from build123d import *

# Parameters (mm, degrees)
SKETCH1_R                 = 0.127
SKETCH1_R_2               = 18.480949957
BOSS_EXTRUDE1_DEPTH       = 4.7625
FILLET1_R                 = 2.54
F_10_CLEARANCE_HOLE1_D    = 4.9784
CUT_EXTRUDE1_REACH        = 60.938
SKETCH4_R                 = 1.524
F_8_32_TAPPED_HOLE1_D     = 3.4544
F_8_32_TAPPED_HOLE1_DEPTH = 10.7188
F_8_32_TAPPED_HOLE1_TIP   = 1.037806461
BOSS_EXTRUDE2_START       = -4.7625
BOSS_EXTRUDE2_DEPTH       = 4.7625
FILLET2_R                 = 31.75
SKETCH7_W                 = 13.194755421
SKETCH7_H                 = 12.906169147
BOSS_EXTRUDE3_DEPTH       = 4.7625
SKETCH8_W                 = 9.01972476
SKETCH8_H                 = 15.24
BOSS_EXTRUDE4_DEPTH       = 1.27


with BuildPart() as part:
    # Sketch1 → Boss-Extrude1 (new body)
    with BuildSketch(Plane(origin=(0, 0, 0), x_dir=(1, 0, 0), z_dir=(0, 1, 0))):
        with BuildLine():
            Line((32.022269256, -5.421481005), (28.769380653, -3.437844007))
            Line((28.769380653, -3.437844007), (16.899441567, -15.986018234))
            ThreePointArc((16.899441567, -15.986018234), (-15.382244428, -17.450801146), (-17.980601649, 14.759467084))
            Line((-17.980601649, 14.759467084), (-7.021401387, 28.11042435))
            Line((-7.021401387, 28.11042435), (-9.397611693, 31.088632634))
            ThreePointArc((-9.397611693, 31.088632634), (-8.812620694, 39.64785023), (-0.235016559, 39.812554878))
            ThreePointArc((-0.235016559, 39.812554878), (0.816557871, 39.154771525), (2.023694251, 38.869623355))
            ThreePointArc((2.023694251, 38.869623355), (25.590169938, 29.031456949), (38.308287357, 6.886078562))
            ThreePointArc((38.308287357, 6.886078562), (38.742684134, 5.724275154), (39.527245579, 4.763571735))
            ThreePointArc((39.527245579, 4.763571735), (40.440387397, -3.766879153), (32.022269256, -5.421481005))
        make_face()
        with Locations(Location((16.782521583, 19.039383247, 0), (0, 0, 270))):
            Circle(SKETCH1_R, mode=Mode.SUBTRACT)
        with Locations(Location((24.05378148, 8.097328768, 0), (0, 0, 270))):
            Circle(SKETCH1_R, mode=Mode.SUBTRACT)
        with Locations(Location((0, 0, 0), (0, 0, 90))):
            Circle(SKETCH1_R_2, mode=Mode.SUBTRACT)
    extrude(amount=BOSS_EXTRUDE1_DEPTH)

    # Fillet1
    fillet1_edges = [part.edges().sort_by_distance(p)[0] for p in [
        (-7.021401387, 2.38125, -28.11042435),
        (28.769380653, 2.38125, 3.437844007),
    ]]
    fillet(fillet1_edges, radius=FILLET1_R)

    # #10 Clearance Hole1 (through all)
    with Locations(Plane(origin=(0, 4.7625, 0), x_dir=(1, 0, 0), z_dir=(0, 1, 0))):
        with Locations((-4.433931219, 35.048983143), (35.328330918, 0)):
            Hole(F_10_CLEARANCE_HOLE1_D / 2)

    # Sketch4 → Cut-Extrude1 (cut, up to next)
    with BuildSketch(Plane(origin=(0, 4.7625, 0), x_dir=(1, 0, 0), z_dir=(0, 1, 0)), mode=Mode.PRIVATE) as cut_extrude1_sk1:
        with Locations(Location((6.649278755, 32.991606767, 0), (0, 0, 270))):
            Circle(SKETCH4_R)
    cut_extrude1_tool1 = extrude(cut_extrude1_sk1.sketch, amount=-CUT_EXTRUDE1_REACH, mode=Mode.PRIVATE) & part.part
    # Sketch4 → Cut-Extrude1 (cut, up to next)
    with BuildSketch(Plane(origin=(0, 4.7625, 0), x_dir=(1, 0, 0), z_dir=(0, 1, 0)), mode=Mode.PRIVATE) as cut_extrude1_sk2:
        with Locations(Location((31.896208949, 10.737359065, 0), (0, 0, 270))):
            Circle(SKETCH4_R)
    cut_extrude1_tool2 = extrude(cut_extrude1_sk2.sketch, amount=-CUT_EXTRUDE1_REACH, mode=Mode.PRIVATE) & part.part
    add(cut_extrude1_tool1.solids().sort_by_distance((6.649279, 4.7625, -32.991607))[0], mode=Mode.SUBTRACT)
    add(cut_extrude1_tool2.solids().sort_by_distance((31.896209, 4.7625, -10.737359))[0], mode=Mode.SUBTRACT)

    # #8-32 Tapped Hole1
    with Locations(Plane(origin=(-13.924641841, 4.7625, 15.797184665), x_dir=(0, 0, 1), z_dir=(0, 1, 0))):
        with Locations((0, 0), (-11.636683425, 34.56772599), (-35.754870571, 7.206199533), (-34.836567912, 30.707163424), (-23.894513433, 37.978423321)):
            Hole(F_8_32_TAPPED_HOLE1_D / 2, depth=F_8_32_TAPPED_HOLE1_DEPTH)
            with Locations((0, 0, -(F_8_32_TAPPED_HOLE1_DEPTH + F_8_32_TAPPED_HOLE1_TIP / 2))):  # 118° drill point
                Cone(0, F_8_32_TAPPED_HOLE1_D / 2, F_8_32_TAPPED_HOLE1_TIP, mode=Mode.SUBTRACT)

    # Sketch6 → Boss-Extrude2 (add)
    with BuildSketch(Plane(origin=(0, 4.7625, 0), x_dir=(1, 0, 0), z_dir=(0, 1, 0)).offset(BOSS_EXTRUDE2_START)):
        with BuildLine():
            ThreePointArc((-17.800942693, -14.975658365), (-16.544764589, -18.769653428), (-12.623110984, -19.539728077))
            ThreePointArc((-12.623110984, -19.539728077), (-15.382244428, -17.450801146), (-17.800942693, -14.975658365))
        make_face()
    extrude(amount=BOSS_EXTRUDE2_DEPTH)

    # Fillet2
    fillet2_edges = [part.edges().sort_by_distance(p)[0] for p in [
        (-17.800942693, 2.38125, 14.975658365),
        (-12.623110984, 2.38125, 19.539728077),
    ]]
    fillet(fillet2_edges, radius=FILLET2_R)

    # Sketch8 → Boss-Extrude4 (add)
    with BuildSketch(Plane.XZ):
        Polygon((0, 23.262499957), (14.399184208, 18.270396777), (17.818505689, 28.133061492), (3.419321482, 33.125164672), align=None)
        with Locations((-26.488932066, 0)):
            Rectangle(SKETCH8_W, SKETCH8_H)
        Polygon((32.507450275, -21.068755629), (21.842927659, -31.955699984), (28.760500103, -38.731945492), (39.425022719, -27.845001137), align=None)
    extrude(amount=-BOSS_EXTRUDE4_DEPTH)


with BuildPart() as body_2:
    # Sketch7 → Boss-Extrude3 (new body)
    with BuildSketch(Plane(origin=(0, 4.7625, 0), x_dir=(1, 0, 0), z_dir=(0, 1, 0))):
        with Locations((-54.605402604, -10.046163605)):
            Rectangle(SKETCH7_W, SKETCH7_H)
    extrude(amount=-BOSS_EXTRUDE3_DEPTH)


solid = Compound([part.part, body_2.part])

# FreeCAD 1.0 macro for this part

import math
import FreeCAD as App
import Part
import Sketcher
from FreeCAD import Vector
Q = App.Units.Quantity


def edges_at(feature, points):
    """Names of the edges that pass closest to the given points."""
    edges = feature.Shape.Edges
    near = lambda p: min(range(len(edges)), key=lambda i: edges[i].distToShape(Part.Vertex(*p))[0])
    return sorted({f"Edge{near(p) + 1}" for p in points})

doc = App.newDocument("Part")
body = doc.addObject("PartDesign::Body", "Body")

sketch1 = body.newObject("Sketcher::SketchObject", "Sketch")
sketch1.AttachmentSupport = (doc.getObject("XZ_Plane"), [""])
sketch1.MapMode = "FlatFace"
sketch1.addGeometry(Part.LineSegment(Vector(28.769381, 3.437844, 0), Vector(32.022269, 5.421481, 0)), False)
sketch1.addGeometry(Part.ArcOfCircle(Part.Circle(Vector(35.328331, 0, 0), Vector(0, 0, 1), 6.35), math.radians(-48.605), math.radians(121.375167)), False)
sketch1.addGeometry(Part.ArcOfCircle(Part.Circle(Vector(42.046594, -7.621715, 0), Vector(0, 0, 1), 3.81), math.radians(131.395), math.radians(168.867394)), False)
sketch1.addGeometry(Part.ArcOfCircle(Part.Circle(Vector(-0.695697, 0.789252, 0), Vector(0, 0, 1), 39.752), math.radians(-86.077394), math.radians(-11.132606)), False)
sketch1.addGeometry(Part.ArcOfCircle(Part.Circle(Vector(2.284332, -42.670698, 0), Vector(0, 0, 1), 3.81), math.radians(93.922606), math.radians(131.395)), False)
sketch1.addGeometry(Part.ArcOfCircle(Part.Circle(Vector(-4.433931, -35.048983, 0), Vector(0, 0, 1), 6.35), math.radians(141.414833), math.radians(311.395)), False)
sketch1.addGeometry(Part.LineSegment(Vector(-9.397612, -31.088633, 0), Vector(-7.021401, -28.110424, 0)), False)
sketch1.addGeometry(Part.LineSegment(Vector(-7.021401, -28.110424, 0), Vector(-17.980602, -14.759467, 0)), False)
sketch1.addGeometry(Part.ArcOfCircle(Part.Circle(Vector(0, 0, 0), Vector(0, 0, 1), 23.2625), math.radians(43.408967), math.radians(219.381033)), False)
sketch1.addGeometry(Part.LineSegment(Vector(16.899442, 15.986018, 0), Vector(28.769381, 3.437844, 0)), False)
sketch1.addGeometry(Part.Circle(Vector(0, 0, 0), Vector(0, 0, 1), 18.48095), False)
sketch1.addGeometry(Part.Circle(Vector(24.053781, -8.097329, 0), Vector(0, 0, 1), 0.127), False)
sketch1.addGeometry(Part.Circle(Vector(16.782522, -19.039383, 0), Vector(0, 0, 1), 0.127), False)
sketch1.addConstraint(Sketcher.Constraint("Coincident", 0, 2, 1, 2))
sketch1.addConstraint(Sketcher.Constraint("Coincident", 1, 1, 2, 1))
sketch1.addConstraint(Sketcher.Constraint("Coincident", 2, 2, 3, 2))
sketch1.addConstraint(Sketcher.Constraint("Coincident", 3, 1, 4, 1))
sketch1.addConstraint(Sketcher.Constraint("Coincident", 4, 2, 5, 2))
sketch1.addConstraint(Sketcher.Constraint("Coincident", 5, 1, 6, 1))
sketch1.addConstraint(Sketcher.Constraint("Coincident", 6, 2, 7, 1))
sketch1.addConstraint(Sketcher.Constraint("Coincident", 7, 2, 8, 2))
sketch1.addConstraint(Sketcher.Constraint("Coincident", 8, 1, 9, 1))
sketch1.addConstraint(Sketcher.Constraint("Coincident", 9, 2, 0, 1))
sketch1.addConstraint(Sketcher.Constraint("Coincident", 8, 3, -1, 1))
sketch1.addConstraint(Sketcher.Constraint("Coincident", 10, 3, -1, 1))
sketch1.addConstraint(Sketcher.Constraint("PointOnObject", 1, 3, -1))
sketch1.addConstraint(Sketcher.Constraint("Diameter", 11, Q("0.01 in")))
sketch1.addConstraint(Sketcher.Constraint("Diameter", 12, Q("0.01 in")))
sketch1.addConstraint(Sketcher.Constraint("Radius", 1, Q("0.25 in")))
sketch1.addConstraint(Sketcher.Constraint("Radius", 2, Q("0.15 in")))
sketch1.addConstraint(Sketcher.Constraint("Radius", 4, Q("0.15 in")))
sketch1.addConstraint(Sketcher.Constraint("Radius", 5, Q("0.25 in")))
sketch1.addConstraint(Sketcher.Constraint("Distance", 0, Q("0.15 in")))
sketch1.addConstraint(Sketcher.Constraint("Distance", 6, Q("0.15 in")))
sketch1.addConstraint(Sketcher.Constraint("Diameter", 10, Q("36.9619 mm")))
sketch1.addConstraint(Sketcher.Constraint("Radius", 3, Q("39.752 mm")))
sketch1.addConstraint(Sketcher.Constraint("Radius", 8, Q("23.2625 mm")))
sketch1.addConstraint(Sketcher.Constraint("DistanceY", 3, 1, -1, 1, Q("1.5303001 in")))
sketch1.addConstraint(Sketcher.Constraint("DistanceX", 6, 2, -1, 1, Q("7.021401 mm")))
sketch1.addConstraint(Sketcher.Constraint("DistanceX", 7, 2, -1, 1, Q("17.980602 mm")))
sketch1.addConstraint(Sketcher.Constraint("DistanceX", 4, 3, 1, 3, Q("33.043999 mm")))
sketch1.addConstraint(Sketcher.Constraint("DistanceY", 3, 1, 6, 2, Q("10.759199 mm")))
sketch1.addConstraint(Sketcher.Constraint("DistanceX", 11, 3, 9, 2, Q("4.715599 mm")))
sketch1.addConstraint(Sketcher.Constraint("DistanceX", -1, 1, 1, 3, Q("35.328331 mm")))
sketch1.addConstraint(Sketcher.Constraint("DistanceX", 5, 3, -1, 1, Q("4.433931 mm")))
sketch1.addConstraint(Sketcher.Constraint("DistanceX", -1, 1, 11, 3, Q("24.053781 mm")))
sketch1.addConstraint(Sketcher.Constraint("DistanceY", 11, 3, -1, 1, Q("8.097329 mm")))
sketch1.addConstraint(Sketcher.Constraint("DistanceX", -1, 1, 12, 3, Q("16.782522 mm")))
sketch1.addConstraint(Sketcher.Constraint("DistanceX", -1, 1, 0, 2, Q("32.022269 mm")))
sketch1.addConstraint(Sketcher.Constraint("DistanceY", 1, 1, -1, 1, Q("4.763572 mm")))
sketch1.addConstraint(Sketcher.Constraint("DistanceY", 2, 2, -1, 1, Q("6.886079 mm")))
sketch1.addConstraint(Sketcher.Constraint("DistanceX", 5, 1, -1, 1, Q("9.397612 mm")))
sketch1.addConstraint(Sketcher.Constraint("DistanceX", -1, 1, 8, 1, Q("16.899442 mm")))
sketch1.addConstraint(Sketcher.Constraint("DistanceX", 3, 3, 1, 3, Q("36.024028 mm")))
sketch1.addConstraint(Sketcher.Constraint("DistanceY", 12, 3, 1, 1, Q("14.275812 mm")))
sketch1.addConstraint(Sketcher.Constraint("DistanceX", 4, 2, 3, 1, Q("2.258711 mm")))
pad1 = body.newObject("PartDesign::Pad", "Pad")
pad1.Profile = sketch1
pad1.Length = Q("0.1875 in")
pad1.Reversed = True
doc.recompute()

fillet = body.newObject("PartDesign::Fillet", "Fillet")
fillet.Base = (pad1, edges_at(pad1, [(-7.021, 2.381, -28.11), (28.769, 2.381, 3.438)]))
fillet.Radius = Q("0.1 in")

sketch2 = body.newObject("Sketcher::SketchObject", "Sketch001")
sketch2.AttachmentSupport = (doc.getObject("XZ_Plane"), [""])
sketch2.MapMode = "FlatFace"
sketch2.AttachmentOffset = App.Placement(Vector(0, 0, -0.1875 * 25.4), App.Rotation())
sketch2.addGeometry(Part.Circle(Vector(-4.433931, -35.048983, 0), Vector(0, 0, 1), 2.4892), False)
sketch2.addGeometry(Part.Circle(Vector(35.328331, 0, 0), Vector(0, 0, 1), 2.4892), False)
sketch2.addConstraint(Sketcher.Constraint("Equal", 0, 1))
sketch2.addConstraint(Sketcher.Constraint("PointOnObject", 1, 3, -1))
sketch2.addConstraint(Sketcher.Constraint("Diameter", 0, Q("0.196 in")))
sketch2.addConstraint(Sketcher.Constraint("DistanceX", 0, 3, -1, 1, Q("4.433931 mm")))
sketch2.addConstraint(Sketcher.Constraint("DistanceX", -1, 1, 1, 3, Q("35.328331 mm")))
sketch2.addConstraint(Sketcher.Constraint("DistanceY", 0, 3, -1, 1, Q("35.048983 mm")))
doc.recompute()
hole = body.newObject("PartDesign::Hole", "Hole")
hole.Profile = sketch2
hole.ThreadType = "None"
hole.Diameter = Q("0.196 in")
hole.DepthType = "ThroughAll"
hole.Reversed = True

sketch3 = body.newObject("Sketcher::SketchObject", "Sketch002")
sketch3.AttachmentSupport = (doc.getObject("XZ_Plane"), [""])
sketch3.MapMode = "FlatFace"
sketch3.AttachmentOffset = App.Placement(Vector(0, 0, -0.1875 * 25.4), App.Rotation())
sketch3.addGeometry(Part.Circle(Vector(6.649279, -32.991607, 0), Vector(0, 0, 1), 1.524), False)
sketch3.addConstraint(Sketcher.Constraint("Diameter", 0, Q("0.12 in")))
sketch3.addConstraint(Sketcher.Constraint("DistanceX", -1, 1, 0, 3, Q("6.649279 mm")))
sketch3.addConstraint(Sketcher.Constraint("DistanceY", 0, 3, -1, 1, Q("32.991607 mm")))
pocket1 = body.newObject("PartDesign::Pocket", "Pocket")
pocket1.Profile = sketch3
pocket1.Type = "UpToFirst"
pocket1.Reversed = True

sketch4 = body.newObject("Sketcher::SketchObject", "Sketch003")
sketch4.AttachmentSupport = (doc.getObject("XZ_Plane"), [""])
sketch4.MapMode = "FlatFace"
sketch4.AttachmentOffset = App.Placement(Vector(0, 0, -0.1875 * 25.4), App.Rotation())
sketch4.addGeometry(Part.Circle(Vector(31.896209, -10.737359, 0), Vector(0, 0, 1), 1.524), False)
sketch4.addConstraint(Sketcher.Constraint("Diameter", 0, Q("0.12 in")))
sketch4.addConstraint(Sketcher.Constraint("DistanceX", -1, 1, 0, 3, Q("31.896209 mm")))
sketch4.addConstraint(Sketcher.Constraint("DistanceY", 0, 3, -1, 1, Q("10.737359 mm")))
pocket2 = body.newObject("PartDesign::Pocket", "Pocket001")
pocket2.Profile = sketch4
pocket2.Type = "UpToFirst"
pocket2.Reversed = True

sketch5 = body.newObject("Sketcher::SketchObject", "Sketch004")
sketch5.AttachmentSupport = (doc.getObject("XZ_Plane"), [""])
sketch5.MapMode = "FlatFace"
sketch5.AttachmentOffset = App.Placement(Vector(0, 0, -0.1875 * 25.4), App.Rotation())
sketch5.addGeometry(Part.Circle(Vector(-13.924642, 15.797185, 0), Vector(0, 0, 1), 1.7272), False)
sketch5.addGeometry(Part.Circle(Vector(20.643084, 4.160501, 0), Vector(0, 0, 1), 1.7272), False)
sketch5.addGeometry(Part.Circle(Vector(-6.718442, -19.957686, 0), Vector(0, 0, 1), 1.7272), False)
sketch5.addGeometry(Part.Circle(Vector(16.782522, -19.039383, 0), Vector(0, 0, 1), 1.7272), False)
sketch5.addGeometry(Part.Circle(Vector(24.053781, -8.097329, 0), Vector(0, 0, 1), 1.7272), False)
sketch5.addConstraint(Sketcher.Constraint("Equal", 0, 1))
sketch5.addConstraint(Sketcher.Constraint("Equal", 1, 2))
sketch5.addConstraint(Sketcher.Constraint("Equal", 2, 3))
sketch5.addConstraint(Sketcher.Constraint("Equal", 3, 4))
sketch5.addConstraint(Sketcher.Constraint("Diameter", 0, Q("0.136 in")))
sketch5.addConstraint(Sketcher.Constraint("DistanceY", -1, 1, 1, 3, Q("4.160501 mm")))
sketch5.addConstraint(Sketcher.Constraint("DistanceX", 0, 3, 2, 3, Q("7.2062 mm")))
sketch5.addConstraint(Sketcher.Constraint("DistanceX", 0, 3, -1, 1, Q("13.924642 mm")))
sketch5.addConstraint(Sketcher.Constraint("DistanceX", -1, 1, 3, 3, Q("16.782522 mm")))
sketch5.addConstraint(Sketcher.Constraint("DistanceX", -1, 1, 4, 3, Q("24.053781 mm")))
sketch5.addConstraint(Sketcher.Constraint("DistanceY", 4, 3, -1, 1, Q("8.097329 mm")))
sketch5.addConstraint(Sketcher.Constraint("DistanceY", 2, 3, 0, 3, Q("35.754871 mm")))
sketch5.addConstraint(Sketcher.Constraint("DistanceY", -1, 1, 0, 3, Q("15.797185 mm")))
sketch5.addConstraint(Sketcher.Constraint("DistanceX", -1, 1, 1, 3, Q("20.643084 mm")))
sketch5.addConstraint(Sketcher.Constraint("DistanceY", 3, 3, -1, 1, Q("19.039383 mm")))
doc.recompute()
hole2 = body.newObject("PartDesign::Hole", "Hole001")
hole2.Profile = sketch5
hole2.ThreadType = "None"
hole2.Diameter = Q("0.136 in")
hole2.DepthType = "Dimension"
hole2.Depth = Q("0.422 in")
hole2.DrillPoint = "Angled"
hole2.DrillPointAngle = 118
hole2.Reversed = True

sketch6 = body.newObject("Sketcher::SketchObject", "Sketch005")
sketch6.AttachmentSupport = (doc.getObject("XZ_Plane"), [""])
sketch6.MapMode = "FlatFace"
sketch6.addGeometry(Part.ArcOfCircle(Part.Circle(Vector(-13.924642, 15.797185, 0), Vector(0, 0, 1), 3.9624), math.radians(70.824043), math.radians(191.965957)), False)
sketch6.addGeometry(Part.ArcOfCircle(Part.Circle(Vector(0, 0, 0), Vector(0, 0, 1), 23.2625), math.radians(122.863384), math.radians(139.926616)), False)
sketch6.addConstraint(Sketcher.Constraint("Coincident", 0, 1, 1, 1))
sketch6.addConstraint(Sketcher.Constraint("Coincident", 1, 2, 0, 2))
sketch6.addConstraint(Sketcher.Constraint("Coincident", 1, 3, -1, 1))
sketch6.addConstraint(Sketcher.Constraint("Radius", 0, Q("0.156 in")))
sketch6.addConstraint(Sketcher.Constraint("Radius", 1, Q("23.2625 mm")))
sketch6.addConstraint(Sketcher.Constraint("DistanceX", 1, 2, 0, 3, Q("3.876301 mm")))
sketch6.addConstraint(Sketcher.Constraint("DistanceX", 0, 3, -1, 1, Q("13.924642 mm")))
pad2 = body.newObject("PartDesign::Pad", "Pad001")
pad2.Profile = sketch6
pad2.Length = Q("0.1875 in")
pad2.Reversed = True
doc.recompute()

fillet2 = body.newObject("PartDesign::Fillet", "Fillet001")
fillet2.Base = (pad2, edges_at(pad2, [(-17.801, 2.381, 14.976), (-12.623, 2.381, 19.54)]))
fillet2.Radius = Q("1.25 in")

sketch7 = body.newObject("Sketcher::SketchObject", "Sketch006")
sketch7.AttachmentSupport = (doc.getObject("XZ_Plane"), [""])
sketch7.MapMode = "FlatFace"
sketch7.addGeometry(Part.LineSegment(Vector(0, 23.2625, 0), Vector(14.399184, 18.270397, 0)), False)
sketch7.addGeometry(Part.LineSegment(Vector(14.399184, 18.270397, 0), Vector(17.818506, 28.133061, 0)), False)
sketch7.addGeometry(Part.LineSegment(Vector(17.818506, 28.133061, 0), Vector(3.419321, 33.125165, 0)), False)
sketch7.addGeometry(Part.LineSegment(Vector(3.419321, 33.125165, 0), Vector(0, 23.2625, 0)), False)
sketch7.addGeometry(Part.LineSegment(Vector(-30.998794, 7.62, 0), Vector(-30.998794, -7.62, 0)), False)
sketch7.addGeometry(Part.LineSegment(Vector(-30.998794, -7.62, 0), Vector(-21.97907, -7.62, 0)), False)
sketch7.addGeometry(Part.LineSegment(Vector(-21.97907, -7.62, 0), Vector(-21.97907, 7.62, 0)), False)
sketch7.addGeometry(Part.LineSegment(Vector(-21.97907, 7.62, 0), Vector(-30.998794, 7.62, 0)), False)
sketch7.addGeometry(Part.LineSegment(Vector(32.50745, -21.068756, 0), Vector(21.842928, -31.9557, 0)), False)
sketch7.addGeometry(Part.LineSegment(Vector(21.842928, -31.9557, 0), Vector(28.7605, -38.731945, 0)), False)
sketch7.addGeometry(Part.LineSegment(Vector(28.7605, -38.731945, 0), Vector(39.425023, -27.845001, 0)), False)
sketch7.addGeometry(Part.LineSegment(Vector(39.425023, -27.845001, 0), Vector(32.50745, -21.068756, 0)), False)
sketch7.addConstraint(Sketcher.Constraint("Coincident", 0, 2, 1, 1))
sketch7.addConstraint(Sketcher.Constraint("Coincident", 1, 2, 2, 1))
sketch7.addConstraint(Sketcher.Constraint("Coincident", 2, 2, 3, 1))
sketch7.addConstraint(Sketcher.Constraint("Coincident", 3, 2, 0, 1))
sketch7.addConstraint(Sketcher.Constraint("Coincident", 4, 2, 5, 1))
sketch7.addConstraint(Sketcher.Constraint("Coincident", 5, 2, 6, 1))
sketch7.addConstraint(Sketcher.Constraint("Coincident", 6, 2, 7, 1))
sketch7.addConstraint(Sketcher.Constraint("Coincident", 7, 2, 4, 1))
sketch7.addConstraint(Sketcher.Constraint("Coincident", 8, 2, 9, 1))
sketch7.addConstraint(Sketcher.Constraint("Coincident", 9, 2, 10, 1))
sketch7.addConstraint(Sketcher.Constraint("Coincident", 10, 2, 11, 1))
sketch7.addConstraint(Sketcher.Constraint("Coincident", 11, 2, 8, 1))
sketch7.addConstraint(Sketcher.Constraint("Vertical", 4))
sketch7.addConstraint(Sketcher.Constraint("Horizontal", 5))
sketch7.addConstraint(Sketcher.Constraint("Vertical", 6))
sketch7.addConstraint(Sketcher.Constraint("Horizontal", 7))
sketch7.addConstraint(Sketcher.Constraint("PointOnObject", 3, 2, -2))
sketch7.addConstraint(Sketcher.Constraint("Perpendicular", 0, 1))
sketch7.addConstraint(Sketcher.Constraint("Perpendicular", 1, 2))
sketch7.addConstraint(Sketcher.Constraint("Perpendicular", 2, 3))
sketch7.addConstraint(Sketcher.Constraint("Perpendicular", 8, 9))
sketch7.addConstraint(Sketcher.Constraint("Perpendicular", 9, 10))
sketch7.addConstraint(Sketcher.Constraint("Perpendicular", 10, 11))
sketch7.addConstraint(Sketcher.Constraint("Equal", 2, 8))
sketch7.addConstraint(Sketcher.Constraint("DistanceY", 4, 2, 4, 1, Q("0.6 in")))
sketch7.addConstraint(Sketcher.Constraint("Distance", 0, Q("0.6 in")))
sketch7.addConstraint(Sketcher.Constraint("DistanceY", 4, 2, -1, 1, Q("0.3 in")))
sketch7.addConstraint(Sketcher.Constraint("DistanceY", -1, 1, 3, 2, Q("23.2625 mm")))
sketch7.addConstraint(Sketcher.Constraint("DistanceY", 8, 2, -1, 1, Q("31.9557 mm")))
sketch7.addConstraint(Sketcher.Constraint("DistanceX", -1, 1, 9, 2, Q("28.7605 mm")))
sketch7.addConstraint(Sketcher.Constraint("DistanceY", 10, 2, -1, 1, Q("27.845001 mm")))
sketch7.addConstraint(Sketcher.Constraint("DistanceX", 4, 2, 1, 2, Q("48.8173 mm")))
sketch7.addConstraint(Sketcher.Constraint("Distance", 1, Q("10.438578 mm")))
sketch7.addConstraint(Sketcher.Constraint("DistanceX", 5, 1, 5, 2, Q("9.019725 mm")))
sketch7.addConstraint(Sketcher.Constraint("DistanceY", -1, 1, 1, 2, Q("28.133061 mm")))
sketch7.addConstraint(Sketcher.Constraint("DistanceX", -1, 1, 11, 2, Q("32.50745 mm")))
pad3 = body.newObject("PartDesign::Pad", "Pad002")
pad3.Profile = sketch7
pad3.Length = Q("0.05 in")
pad3.Reversed = True
body2 = doc.addObject("PartDesign::Body", "Body001")

sketch8 = body2.newObject("Sketcher::SketchObject", "Sketch007")
sketch8.AttachmentSupport = (doc.getObject("XZ_Plane001"), [""])
sketch8.MapMode = "FlatFace"
sketch8.AttachmentOffset = App.Placement(Vector(0, 0, -0.1875 * 25.4), App.Rotation())
sketch8.addGeometry(Part.LineSegment(Vector(-61.20278, 3.593079, 0), Vector(-61.20278, 16.499248, 0)), False)
sketch8.addGeometry(Part.LineSegment(Vector(-61.20278, 16.499248, 0), Vector(-48.008025, 16.499248, 0)), False)
sketch8.addGeometry(Part.LineSegment(Vector(-48.008025, 16.499248, 0), Vector(-48.008025, 3.593079, 0)), False)
sketch8.addGeometry(Part.LineSegment(Vector(-48.008025, 3.593079, 0), Vector(-61.20278, 3.593079, 0)), False)
sketch8.addConstraint(Sketcher.Constraint("Coincident", 0, 2, 1, 1))
sketch8.addConstraint(Sketcher.Constraint("Coincident", 1, 2, 2, 1))
sketch8.addConstraint(Sketcher.Constraint("Coincident", 2, 2, 3, 1))
sketch8.addConstraint(Sketcher.Constraint("Coincident", 3, 2, 0, 1))
sketch8.addConstraint(Sketcher.Constraint("Vertical", 0))
sketch8.addConstraint(Sketcher.Constraint("Horizontal", 1))
sketch8.addConstraint(Sketcher.Constraint("Vertical", 2))
sketch8.addConstraint(Sketcher.Constraint("Horizontal", 3))
sketch8.addConstraint(Sketcher.Constraint("DistanceY", 0, 1, 0, 2, Q("12.906169 mm")))
sketch8.addConstraint(Sketcher.Constraint("DistanceX", 1, 1, 1, 2, Q("13.194755 mm")))
sketch8.addConstraint(Sketcher.Constraint("DistanceX", 0, 2, -1, 1, Q("61.20278 mm")))
sketch8.addConstraint(Sketcher.Constraint("DistanceY", -1, 1, 0, 2, Q("16.499248 mm")))
pad4 = body2.newObject("PartDesign::Pad", "Pad003")
pad4.Profile = sketch8
pad4.Length = Q("0.1875 in")

doc.recompute()
